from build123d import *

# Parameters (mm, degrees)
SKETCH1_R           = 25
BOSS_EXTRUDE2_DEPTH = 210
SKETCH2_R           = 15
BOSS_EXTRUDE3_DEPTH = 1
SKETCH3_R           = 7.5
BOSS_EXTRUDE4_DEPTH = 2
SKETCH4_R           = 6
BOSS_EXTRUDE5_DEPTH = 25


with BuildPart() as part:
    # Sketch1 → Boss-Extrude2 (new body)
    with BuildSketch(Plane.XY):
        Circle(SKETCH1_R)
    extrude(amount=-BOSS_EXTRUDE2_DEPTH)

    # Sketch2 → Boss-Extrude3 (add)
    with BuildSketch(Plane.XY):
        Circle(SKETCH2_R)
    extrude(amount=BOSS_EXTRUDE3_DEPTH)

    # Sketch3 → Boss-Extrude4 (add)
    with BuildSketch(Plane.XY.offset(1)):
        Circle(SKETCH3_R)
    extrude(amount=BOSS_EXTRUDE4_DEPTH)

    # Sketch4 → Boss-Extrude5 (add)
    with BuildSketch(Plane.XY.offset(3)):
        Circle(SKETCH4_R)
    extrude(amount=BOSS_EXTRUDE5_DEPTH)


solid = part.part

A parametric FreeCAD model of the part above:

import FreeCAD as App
import Part
import Sketcher

V = App.Vector
Q = App.Units.Quantity

doc = App.newDocument("Part")
params = doc.addObject("Spreadsheet::Sheet", "Params")
for row, (alias, value) in enumerate([
    ("sketch1_diameter", "50 mm"),
    ("pad1_length", "210 mm"),
    ("sketch2_diameter", "30 mm"),
    ("pad2_length", "1 mm"),
    ("sketch3_diameter", "15 mm"),
    ("pad3_length", "2 mm"),
    ("sketch4_diameter", "12 mm"),
    ("pad4_length", "25 mm"),
], start=1):
    params.set(f"A{row}", alias)
    params.set(f"B{row}", "=" + value)
    params.setAlias(f"B{row}", alias)

body = doc.addObject("PartDesign::Body", "Body")

sketch1 = doc.addObject("Sketcher::SketchObject", "Sketch")
body.addObject(sketch1)
sketch1.AttachmentSupport = (doc.XY_Plane, [""])
sketch1.MapMode = "FlatFace"
sketch1.addGeometry(Part.Circle(V(0, 0, 0), V(0, 0, 1), 25), False)
sketch1.addConstraint([
    Sketcher.Constraint("Coincident", 0, 3, -1, 1),
    Sketcher.Constraint("Diameter", 0, Q("50 mm")),
])
sketch1.setExpression("Constraints[1]", "Params.sketch1_diameter")
pad1 = doc.addObject("PartDesign::Pad", "Pad")
body.addObject(pad1)
pad1.Profile = sketch1
pad1.setExpression("Length", "Params.pad1_length")
pad1.Reversed = True

sketch2 = doc.addObject("Sketcher::SketchObject", "Sketch001")
body.addObject(sketch2)
sketch2.AttachmentSupport = (doc.XY_Plane, [""])
sketch2.MapMode = "FlatFace"
sketch2.addGeometry(Part.Circle(V(0, 0, 0), V(0, 0, 1), 15), False)
sketch2.addConstraint([
    Sketcher.Constraint("Coincident", 0, 3, -1, 1),
    Sketcher.Constraint("Diameter", 0, Q("30 mm")),
])
sketch2.setExpression("Constraints[1]", "Params.sketch2_diameter")
pad2 = doc.addObject("PartDesign::Pad", "Pad001")
body.addObject(pad2)
pad2.Profile = sketch2
pad2.setExpression("Length", "Params.pad2_length")

sketch3 = doc.addObject("Sketcher::SketchObject", "Sketch002")
body.addObject(sketch3)
sketch3.AttachmentSupport = (doc.XY_Plane, [""])
sketch3.MapMode = "FlatFace"
sketch3.AttachmentOffset = App.Placement(V(0, 0, 1), App.Rotation())
sketch3.addGeometry(Part.Circle(V(0, 0, 0), V(0, 0, 1), 8), False)
sketch3.addConstraint([
    Sketcher.Constraint("Coincident", 0, 3, -1, 1),
    Sketcher.Constraint("Diameter", 0, Q("15 mm")),
])
sketch3.setExpression("Constraints[1]", "Params.sketch3_diameter")
pad3 = doc.addObject("PartDesign::Pad", "Pad002")
body.addObject(pad3)
pad3.Profile = sketch3
pad3.setExpression("Length", "Params.pad3_length")

sketch4 = doc.addObject("Sketcher::SketchObject", "Sketch003")
body.addObject(sketch4)
sketch4.AttachmentSupport = (doc.XY_Plane, [""])
sketch4.MapMode = "FlatFace"
sketch4.AttachmentOffset = App.Placement(V(0, 0, 3), App.Rotation())
sketch4.addGeometry(Part.Circle(V(0, 0, 0), V(0, 0, 1), 6), False)
sketch4.addConstraint([
    Sketcher.Constraint("Coincident", 0, 3, -1, 1),
    Sketcher.Constraint("Diameter", 0, Q("12 mm")),
])
sketch4.setExpression("Constraints[1]", "Params.sketch4_diameter")
pad4 = doc.addObject("PartDesign::Pad", "Pad003")
body.addObject(pad4)
pad4.Profile = sketch4
pad4.setExpression("Length", "Params.pad4_length")

doc.recompute()
